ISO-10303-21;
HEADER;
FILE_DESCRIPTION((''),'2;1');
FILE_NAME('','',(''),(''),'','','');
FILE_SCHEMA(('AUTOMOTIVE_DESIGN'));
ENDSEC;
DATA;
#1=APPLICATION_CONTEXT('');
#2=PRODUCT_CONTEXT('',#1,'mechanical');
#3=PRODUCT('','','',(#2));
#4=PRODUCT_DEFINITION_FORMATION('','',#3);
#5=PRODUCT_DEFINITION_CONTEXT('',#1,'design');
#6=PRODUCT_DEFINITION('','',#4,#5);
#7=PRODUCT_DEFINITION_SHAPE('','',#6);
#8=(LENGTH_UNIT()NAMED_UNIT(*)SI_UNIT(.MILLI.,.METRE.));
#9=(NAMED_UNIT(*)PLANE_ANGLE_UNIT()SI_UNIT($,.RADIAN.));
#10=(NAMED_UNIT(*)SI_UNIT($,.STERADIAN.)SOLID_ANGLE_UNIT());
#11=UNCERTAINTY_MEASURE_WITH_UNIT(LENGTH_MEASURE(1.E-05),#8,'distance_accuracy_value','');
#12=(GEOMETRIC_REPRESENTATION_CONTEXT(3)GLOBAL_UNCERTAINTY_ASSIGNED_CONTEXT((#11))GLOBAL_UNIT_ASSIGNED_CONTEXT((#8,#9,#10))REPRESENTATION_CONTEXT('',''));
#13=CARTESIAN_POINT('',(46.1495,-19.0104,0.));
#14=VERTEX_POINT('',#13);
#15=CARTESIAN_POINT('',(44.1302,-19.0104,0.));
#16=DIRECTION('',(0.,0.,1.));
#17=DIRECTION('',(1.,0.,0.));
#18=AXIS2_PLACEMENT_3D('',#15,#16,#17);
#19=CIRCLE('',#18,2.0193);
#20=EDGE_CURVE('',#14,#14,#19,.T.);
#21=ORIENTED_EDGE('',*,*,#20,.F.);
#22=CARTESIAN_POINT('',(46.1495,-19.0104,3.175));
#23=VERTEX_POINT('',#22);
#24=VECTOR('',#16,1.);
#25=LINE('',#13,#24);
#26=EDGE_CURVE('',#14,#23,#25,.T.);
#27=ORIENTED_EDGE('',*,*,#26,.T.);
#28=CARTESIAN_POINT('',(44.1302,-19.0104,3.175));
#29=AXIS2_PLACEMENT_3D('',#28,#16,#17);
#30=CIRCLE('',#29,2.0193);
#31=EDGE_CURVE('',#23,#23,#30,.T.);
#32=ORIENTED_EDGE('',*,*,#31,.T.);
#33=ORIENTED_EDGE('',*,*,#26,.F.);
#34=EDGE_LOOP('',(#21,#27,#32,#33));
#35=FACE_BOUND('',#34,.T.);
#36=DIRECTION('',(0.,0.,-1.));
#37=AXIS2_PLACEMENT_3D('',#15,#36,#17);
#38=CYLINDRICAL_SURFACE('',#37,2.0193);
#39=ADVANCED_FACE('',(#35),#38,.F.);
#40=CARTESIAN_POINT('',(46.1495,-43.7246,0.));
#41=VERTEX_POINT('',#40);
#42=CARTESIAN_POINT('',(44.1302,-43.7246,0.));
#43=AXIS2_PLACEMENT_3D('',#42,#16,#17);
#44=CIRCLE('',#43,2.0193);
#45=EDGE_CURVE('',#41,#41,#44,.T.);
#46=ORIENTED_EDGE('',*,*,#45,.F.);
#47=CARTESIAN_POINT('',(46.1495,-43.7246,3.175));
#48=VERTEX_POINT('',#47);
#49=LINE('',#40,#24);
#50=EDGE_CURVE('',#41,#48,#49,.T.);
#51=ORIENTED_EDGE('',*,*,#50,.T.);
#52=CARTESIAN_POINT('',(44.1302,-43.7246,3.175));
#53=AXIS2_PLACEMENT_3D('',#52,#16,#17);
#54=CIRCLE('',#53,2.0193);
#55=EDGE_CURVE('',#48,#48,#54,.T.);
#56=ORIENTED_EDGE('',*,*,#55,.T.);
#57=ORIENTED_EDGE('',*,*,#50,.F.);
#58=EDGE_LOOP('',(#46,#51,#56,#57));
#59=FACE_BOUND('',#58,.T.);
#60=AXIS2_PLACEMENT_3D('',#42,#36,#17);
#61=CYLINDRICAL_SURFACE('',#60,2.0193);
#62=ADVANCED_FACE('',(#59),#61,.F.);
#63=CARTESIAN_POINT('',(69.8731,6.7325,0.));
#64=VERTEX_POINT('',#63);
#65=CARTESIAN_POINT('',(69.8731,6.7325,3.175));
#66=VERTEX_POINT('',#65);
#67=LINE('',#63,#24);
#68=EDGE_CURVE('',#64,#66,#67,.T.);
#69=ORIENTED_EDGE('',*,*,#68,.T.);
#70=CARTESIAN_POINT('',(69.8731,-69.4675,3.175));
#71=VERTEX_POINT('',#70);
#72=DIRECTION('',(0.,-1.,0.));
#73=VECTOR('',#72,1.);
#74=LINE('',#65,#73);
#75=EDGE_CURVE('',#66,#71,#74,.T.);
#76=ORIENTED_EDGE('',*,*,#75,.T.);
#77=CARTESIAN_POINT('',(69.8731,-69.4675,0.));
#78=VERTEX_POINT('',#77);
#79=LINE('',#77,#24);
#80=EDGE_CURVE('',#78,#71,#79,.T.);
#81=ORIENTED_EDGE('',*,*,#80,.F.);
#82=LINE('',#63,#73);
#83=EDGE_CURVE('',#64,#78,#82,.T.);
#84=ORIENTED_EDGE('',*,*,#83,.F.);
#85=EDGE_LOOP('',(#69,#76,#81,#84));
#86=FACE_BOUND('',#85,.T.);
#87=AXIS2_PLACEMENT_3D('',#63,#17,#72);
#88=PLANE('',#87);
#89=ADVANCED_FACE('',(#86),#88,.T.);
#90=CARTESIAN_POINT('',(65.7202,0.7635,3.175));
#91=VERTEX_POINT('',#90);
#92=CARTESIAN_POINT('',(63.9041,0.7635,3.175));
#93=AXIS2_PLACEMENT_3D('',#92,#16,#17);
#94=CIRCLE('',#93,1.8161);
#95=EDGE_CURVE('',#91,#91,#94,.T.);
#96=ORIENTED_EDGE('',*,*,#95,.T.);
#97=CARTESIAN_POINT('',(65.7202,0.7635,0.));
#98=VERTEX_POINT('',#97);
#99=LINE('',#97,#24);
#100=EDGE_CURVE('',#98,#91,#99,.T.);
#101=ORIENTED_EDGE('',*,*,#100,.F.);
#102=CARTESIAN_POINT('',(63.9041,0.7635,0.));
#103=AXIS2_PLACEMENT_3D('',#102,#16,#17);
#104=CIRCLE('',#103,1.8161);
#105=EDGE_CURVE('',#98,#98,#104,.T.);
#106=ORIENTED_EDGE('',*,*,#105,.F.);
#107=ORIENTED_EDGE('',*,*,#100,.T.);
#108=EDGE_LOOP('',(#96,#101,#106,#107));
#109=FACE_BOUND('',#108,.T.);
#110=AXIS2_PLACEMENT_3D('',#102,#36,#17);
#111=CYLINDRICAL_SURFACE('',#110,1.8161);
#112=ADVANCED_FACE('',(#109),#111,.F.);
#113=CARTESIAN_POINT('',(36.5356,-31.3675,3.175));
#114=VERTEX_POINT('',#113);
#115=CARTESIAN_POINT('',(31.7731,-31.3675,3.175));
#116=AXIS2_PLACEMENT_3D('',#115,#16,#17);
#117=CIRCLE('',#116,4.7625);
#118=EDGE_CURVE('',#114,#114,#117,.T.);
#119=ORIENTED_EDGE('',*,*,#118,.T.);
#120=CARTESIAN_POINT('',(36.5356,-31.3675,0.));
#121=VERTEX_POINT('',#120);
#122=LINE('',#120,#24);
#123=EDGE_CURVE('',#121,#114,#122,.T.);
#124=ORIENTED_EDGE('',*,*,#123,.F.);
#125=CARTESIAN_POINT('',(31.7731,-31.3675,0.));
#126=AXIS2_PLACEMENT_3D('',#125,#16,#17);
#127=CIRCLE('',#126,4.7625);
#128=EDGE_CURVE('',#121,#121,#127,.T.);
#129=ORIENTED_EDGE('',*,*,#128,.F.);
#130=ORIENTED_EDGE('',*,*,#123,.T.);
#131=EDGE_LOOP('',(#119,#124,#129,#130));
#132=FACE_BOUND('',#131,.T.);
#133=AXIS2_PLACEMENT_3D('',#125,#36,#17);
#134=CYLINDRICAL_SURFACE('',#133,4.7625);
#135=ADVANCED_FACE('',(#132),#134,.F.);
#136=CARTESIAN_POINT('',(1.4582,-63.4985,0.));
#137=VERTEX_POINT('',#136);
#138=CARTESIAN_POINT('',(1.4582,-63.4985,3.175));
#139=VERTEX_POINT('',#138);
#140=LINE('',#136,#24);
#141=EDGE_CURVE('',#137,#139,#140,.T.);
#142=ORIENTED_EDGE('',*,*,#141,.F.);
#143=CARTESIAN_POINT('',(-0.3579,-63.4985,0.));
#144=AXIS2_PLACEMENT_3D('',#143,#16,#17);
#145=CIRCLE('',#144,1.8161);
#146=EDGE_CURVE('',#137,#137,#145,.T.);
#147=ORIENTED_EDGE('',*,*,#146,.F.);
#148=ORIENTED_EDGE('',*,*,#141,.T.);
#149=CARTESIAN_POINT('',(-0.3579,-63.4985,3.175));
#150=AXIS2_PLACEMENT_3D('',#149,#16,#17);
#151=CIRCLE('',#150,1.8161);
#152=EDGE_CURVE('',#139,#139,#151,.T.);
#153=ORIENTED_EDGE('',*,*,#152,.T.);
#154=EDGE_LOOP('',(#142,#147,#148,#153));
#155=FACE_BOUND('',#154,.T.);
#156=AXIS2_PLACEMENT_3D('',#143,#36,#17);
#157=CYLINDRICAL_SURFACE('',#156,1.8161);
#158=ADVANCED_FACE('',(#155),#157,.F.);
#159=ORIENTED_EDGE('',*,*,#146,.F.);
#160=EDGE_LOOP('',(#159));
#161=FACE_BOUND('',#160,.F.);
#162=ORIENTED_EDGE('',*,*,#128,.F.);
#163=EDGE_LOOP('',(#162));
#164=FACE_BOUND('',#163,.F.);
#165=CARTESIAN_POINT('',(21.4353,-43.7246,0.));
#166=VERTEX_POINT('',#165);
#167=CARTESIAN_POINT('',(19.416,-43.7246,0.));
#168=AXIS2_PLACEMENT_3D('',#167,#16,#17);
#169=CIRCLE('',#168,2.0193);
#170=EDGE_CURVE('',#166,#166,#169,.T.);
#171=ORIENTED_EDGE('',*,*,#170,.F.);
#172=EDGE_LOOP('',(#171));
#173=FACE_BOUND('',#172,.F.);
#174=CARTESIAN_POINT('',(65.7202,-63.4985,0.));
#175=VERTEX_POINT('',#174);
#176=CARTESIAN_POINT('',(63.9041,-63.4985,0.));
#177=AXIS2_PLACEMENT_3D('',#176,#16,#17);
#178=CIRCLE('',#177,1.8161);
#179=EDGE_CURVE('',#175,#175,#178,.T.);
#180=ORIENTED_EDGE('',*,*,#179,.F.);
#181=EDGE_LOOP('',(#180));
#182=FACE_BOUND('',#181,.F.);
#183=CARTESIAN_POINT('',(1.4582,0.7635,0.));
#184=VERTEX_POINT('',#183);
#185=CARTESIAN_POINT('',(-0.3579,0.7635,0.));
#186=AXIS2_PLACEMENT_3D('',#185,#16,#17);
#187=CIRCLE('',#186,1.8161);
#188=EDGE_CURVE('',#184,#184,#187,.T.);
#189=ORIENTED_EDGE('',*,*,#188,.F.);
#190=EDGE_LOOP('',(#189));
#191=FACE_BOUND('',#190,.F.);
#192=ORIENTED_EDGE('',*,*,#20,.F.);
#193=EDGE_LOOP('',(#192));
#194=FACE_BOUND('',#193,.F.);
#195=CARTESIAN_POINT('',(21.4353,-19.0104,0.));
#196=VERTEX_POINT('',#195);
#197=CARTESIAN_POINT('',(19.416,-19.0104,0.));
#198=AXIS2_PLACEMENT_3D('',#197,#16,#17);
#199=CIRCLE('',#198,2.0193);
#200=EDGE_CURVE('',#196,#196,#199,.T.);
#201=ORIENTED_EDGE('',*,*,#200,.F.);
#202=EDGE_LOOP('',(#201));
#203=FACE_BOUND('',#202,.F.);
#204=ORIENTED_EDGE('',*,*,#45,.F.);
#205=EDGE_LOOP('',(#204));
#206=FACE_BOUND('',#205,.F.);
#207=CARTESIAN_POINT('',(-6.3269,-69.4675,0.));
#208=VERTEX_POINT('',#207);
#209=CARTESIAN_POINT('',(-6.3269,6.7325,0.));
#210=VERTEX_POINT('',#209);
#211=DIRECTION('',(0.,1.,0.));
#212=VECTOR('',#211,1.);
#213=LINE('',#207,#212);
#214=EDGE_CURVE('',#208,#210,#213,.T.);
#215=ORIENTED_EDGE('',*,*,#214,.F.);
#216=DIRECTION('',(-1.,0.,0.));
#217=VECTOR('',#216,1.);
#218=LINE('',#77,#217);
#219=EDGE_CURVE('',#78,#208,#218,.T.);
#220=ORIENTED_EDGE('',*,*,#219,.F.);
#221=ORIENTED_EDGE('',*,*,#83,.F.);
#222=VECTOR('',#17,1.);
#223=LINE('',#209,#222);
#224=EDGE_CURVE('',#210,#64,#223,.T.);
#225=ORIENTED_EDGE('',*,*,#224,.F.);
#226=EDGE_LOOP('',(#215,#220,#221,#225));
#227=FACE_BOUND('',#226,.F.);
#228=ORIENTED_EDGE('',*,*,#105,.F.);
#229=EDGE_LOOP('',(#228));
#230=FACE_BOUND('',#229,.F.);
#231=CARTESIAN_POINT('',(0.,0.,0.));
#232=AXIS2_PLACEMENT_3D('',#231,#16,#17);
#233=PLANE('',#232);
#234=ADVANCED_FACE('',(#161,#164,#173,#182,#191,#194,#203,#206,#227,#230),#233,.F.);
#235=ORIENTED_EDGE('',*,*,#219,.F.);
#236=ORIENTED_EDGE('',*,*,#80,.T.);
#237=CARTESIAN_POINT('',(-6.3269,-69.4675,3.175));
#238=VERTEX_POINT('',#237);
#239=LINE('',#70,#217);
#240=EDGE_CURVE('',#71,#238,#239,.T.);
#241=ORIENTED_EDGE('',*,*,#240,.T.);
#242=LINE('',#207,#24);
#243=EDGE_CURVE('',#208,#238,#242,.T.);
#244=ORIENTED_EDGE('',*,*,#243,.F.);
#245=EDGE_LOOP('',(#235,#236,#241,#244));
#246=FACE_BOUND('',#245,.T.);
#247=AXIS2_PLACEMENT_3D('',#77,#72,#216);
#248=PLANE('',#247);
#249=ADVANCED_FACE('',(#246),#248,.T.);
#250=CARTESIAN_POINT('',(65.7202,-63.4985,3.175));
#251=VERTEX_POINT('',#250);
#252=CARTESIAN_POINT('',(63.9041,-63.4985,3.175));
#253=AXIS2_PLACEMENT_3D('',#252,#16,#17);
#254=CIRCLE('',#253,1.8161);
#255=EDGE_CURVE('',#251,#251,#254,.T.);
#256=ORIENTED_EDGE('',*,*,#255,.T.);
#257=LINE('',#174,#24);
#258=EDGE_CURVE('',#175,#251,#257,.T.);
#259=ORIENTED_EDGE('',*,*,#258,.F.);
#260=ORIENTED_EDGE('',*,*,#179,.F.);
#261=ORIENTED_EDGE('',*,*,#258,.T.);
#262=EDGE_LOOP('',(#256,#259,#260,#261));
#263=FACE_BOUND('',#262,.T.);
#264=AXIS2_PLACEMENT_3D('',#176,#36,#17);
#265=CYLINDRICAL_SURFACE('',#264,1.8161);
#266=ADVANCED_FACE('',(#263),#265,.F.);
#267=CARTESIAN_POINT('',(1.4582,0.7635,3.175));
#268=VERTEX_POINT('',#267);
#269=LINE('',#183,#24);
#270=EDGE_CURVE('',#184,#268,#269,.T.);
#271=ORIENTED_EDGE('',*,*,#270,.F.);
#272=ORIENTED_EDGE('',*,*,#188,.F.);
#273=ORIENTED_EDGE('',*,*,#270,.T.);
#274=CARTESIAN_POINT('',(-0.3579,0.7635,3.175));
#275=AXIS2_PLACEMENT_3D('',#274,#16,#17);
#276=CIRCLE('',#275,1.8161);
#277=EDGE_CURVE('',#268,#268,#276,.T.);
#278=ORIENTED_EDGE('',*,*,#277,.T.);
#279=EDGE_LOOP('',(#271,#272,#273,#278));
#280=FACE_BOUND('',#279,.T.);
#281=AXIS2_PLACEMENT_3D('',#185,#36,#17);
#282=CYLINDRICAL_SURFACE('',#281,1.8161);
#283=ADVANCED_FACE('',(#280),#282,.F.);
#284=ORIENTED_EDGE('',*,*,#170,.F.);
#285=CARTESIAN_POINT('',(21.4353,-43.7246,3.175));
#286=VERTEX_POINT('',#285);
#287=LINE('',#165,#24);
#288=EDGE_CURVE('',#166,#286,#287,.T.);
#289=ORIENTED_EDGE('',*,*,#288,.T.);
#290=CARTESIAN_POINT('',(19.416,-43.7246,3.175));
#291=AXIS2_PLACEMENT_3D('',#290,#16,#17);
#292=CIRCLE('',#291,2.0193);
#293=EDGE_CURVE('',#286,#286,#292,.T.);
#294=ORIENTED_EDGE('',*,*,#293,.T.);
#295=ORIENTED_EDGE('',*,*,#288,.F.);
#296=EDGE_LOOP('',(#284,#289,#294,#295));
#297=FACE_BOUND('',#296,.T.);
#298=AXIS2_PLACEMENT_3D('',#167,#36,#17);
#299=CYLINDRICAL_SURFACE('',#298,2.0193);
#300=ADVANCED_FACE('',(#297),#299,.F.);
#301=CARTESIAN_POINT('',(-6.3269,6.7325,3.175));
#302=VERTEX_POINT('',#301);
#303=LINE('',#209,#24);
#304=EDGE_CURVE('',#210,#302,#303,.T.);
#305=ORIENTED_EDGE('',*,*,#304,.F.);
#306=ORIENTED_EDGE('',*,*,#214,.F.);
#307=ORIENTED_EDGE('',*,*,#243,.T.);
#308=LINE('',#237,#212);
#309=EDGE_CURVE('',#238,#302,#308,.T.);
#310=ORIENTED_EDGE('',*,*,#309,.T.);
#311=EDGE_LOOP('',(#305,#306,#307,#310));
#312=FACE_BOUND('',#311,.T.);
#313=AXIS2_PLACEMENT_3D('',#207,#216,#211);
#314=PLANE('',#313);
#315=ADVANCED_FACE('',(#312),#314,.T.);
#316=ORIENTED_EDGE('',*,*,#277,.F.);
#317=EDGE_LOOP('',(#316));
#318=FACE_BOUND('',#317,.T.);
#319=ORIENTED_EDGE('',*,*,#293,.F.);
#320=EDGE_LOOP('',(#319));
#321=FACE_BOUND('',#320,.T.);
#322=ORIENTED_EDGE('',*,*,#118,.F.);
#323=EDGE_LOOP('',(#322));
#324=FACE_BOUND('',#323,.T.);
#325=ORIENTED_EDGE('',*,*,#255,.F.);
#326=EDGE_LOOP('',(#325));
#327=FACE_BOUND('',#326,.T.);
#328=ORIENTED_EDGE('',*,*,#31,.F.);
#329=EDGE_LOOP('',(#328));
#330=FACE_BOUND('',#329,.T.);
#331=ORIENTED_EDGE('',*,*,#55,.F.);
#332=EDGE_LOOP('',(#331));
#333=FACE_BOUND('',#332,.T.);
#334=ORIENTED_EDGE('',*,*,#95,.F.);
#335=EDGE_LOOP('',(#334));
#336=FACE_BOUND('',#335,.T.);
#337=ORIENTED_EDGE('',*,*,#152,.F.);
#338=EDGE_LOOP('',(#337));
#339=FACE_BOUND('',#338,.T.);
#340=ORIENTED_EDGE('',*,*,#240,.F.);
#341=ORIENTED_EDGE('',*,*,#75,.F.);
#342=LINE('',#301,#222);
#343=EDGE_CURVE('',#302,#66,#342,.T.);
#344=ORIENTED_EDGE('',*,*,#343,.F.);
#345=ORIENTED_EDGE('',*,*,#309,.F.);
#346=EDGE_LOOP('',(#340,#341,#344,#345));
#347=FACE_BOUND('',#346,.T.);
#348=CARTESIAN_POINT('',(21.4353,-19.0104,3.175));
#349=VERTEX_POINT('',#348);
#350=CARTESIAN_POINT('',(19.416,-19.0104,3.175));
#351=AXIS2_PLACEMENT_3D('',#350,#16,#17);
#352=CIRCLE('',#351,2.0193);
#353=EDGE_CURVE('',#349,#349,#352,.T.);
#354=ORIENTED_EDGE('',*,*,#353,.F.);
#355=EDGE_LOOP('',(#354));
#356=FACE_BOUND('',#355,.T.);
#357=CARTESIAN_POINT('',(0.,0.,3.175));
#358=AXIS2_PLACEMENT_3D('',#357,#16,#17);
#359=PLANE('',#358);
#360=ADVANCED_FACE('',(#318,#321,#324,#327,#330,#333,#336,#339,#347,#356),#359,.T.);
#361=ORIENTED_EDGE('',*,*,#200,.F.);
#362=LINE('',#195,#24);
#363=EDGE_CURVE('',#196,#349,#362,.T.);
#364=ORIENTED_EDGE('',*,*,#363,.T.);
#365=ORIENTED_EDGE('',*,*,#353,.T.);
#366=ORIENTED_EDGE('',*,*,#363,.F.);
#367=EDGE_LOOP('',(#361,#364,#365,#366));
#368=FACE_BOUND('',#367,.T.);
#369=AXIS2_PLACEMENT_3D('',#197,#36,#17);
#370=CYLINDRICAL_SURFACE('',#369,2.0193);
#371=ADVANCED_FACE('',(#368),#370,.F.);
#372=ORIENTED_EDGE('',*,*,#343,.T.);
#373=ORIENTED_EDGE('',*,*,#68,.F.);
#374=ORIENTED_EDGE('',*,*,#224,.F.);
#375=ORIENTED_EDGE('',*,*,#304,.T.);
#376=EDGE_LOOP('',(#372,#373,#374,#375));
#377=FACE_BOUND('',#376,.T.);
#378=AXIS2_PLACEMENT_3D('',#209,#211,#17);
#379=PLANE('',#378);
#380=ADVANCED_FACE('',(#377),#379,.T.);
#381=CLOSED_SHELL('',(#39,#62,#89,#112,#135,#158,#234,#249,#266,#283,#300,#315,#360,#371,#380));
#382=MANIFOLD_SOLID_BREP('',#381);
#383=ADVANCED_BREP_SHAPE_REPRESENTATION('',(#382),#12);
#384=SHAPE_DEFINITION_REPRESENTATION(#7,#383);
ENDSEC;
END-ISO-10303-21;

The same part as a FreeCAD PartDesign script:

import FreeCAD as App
import Part
import Sketcher
from FreeCAD import Vector
Q = App.Units.Quantity


def add_polygon(sketch, points):
    """Adds a closed chain of lines whose ends are joined by coincident constraints."""
    first, n = sketch.GeometryCount, len(points)
    for a, b in zip(points, points[1:] + points[:1]):
        sketch.addGeometry(Part.LineSegment(App.Vector(*a, 0), App.Vector(*b, 0)), False)
    for i in range(n):
        sketch.addConstraint(Sketcher.Constraint("Coincident", first + i, 2, first + (i + 1) % n, 1))

doc = App.newDocument("Part")
body = doc.addObject("PartDesign::Body", "Body")

# Sketch on XY plane
sketch1 = body.newObject("Sketcher::SketchObject", "Sketch")
sketch1.AttachmentSupport = (doc.getObject("XY_Plane"), [""])
sketch1.MapMode = "FlatFace"
add_polygon(sketch1, [(69.9, 6.7), (-6.3, 6.7), (-6.3, -69.5), (69.9, -69.5)])  # lines 0-3
sketch1.addGeometry(Part.Circle(Vector(-0.4, -63.5, 0), Vector(0, 0, 1), 1.8), False)  # 4
sketch1.addGeometry(Part.Circle(Vector(19.4, -43.7, 0), Vector(0, 0, 1), 2), False)  # 5
sketch1.addGeometry(Part.Circle(Vector(63.9, -63.5, 0), Vector(0, 0, 1), 1.8), False)  # 6
sketch1.addGeometry(Part.Circle(Vector(44.1, -43.7, 0), Vector(0, 0, 1), 2), False)  # 7
sketch1.addGeometry(Part.Circle(Vector(19.4, -19, 0), Vector(0, 0, 1), 2), False)  # 8
sketch1.addGeometry(Part.Circle(Vector(-0.4, 0.8, 0), Vector(0, 0, 1), 1.8), False)  # 9
sketch1.addGeometry(Part.Circle(Vector(31.8, -31.4, 0), Vector(0, 0, 1), 4.8), False)  # 10
sketch1.addGeometry(Part.Circle(Vector(44.1, -19, 0), Vector(0, 0, 1), 2), False)  # 11
sketch1.addGeometry(Part.Circle(Vector(63.9, 0.8, 0), Vector(0, 0, 1), 1.8), False)  # 12
sketch1.addConstraint([
    Sketcher.Constraint("Horizontal", 0),
    Sketcher.Constraint("Vertical", 1),
    Sketcher.Constraint("Horizontal", 2),
    Sketcher.Constraint("Vertical", 3),
    Sketcher.Constraint("Equal", 4, 6),
    Sketcher.Constraint("Equal", 5, 7),
    Sketcher.Constraint("Equal", 7, 8),
    Sketcher.Constraint("Equal", 6, 9),
    Sketcher.Constraint("Equal", 8, 11),
    Sketcher.Constraint("Equal", 9, 12),
    Sketcher.Constraint("Horizontal", 4, 3, 6, 3),
    Sketcher.Constraint("Horizontal", 5, 3, 7, 3),
    Sketcher.Constraint("Horizontal", 8, 3, 11, 3),
    Sketcher.Constraint("Horizontal", 9, 3, 12, 3),
    Sketcher.Constraint("Vertical", 5, 3, 8, 3),
    Sketcher.Constraint("Vertical", 4, 3, 9, 3),
    Sketcher.Constraint("Vertical", 7, 3, 11, 3),
    Sketcher.Constraint("Vertical", 6, 3, 12, 3),
    Sketcher.Constraint("Equal", 2, 1),
    Sketcher.Constraint("DistanceX", 0, 2, 0, 1, Q("3 in")),
    Sketcher.Constraint("Diameter", 4, Q("0.143 in")),
    Sketcher.Constraint("Diameter", 5, Q("0.159 in")),
    Sketcher.Constraint("Diameter", 10, Q("0.375 in")),
    Sketcher.Constraint("DistanceX", 0, 2, 10, 3, Q("1.5 in")),
    Sketcher.Constraint("DistanceY", 10, 3, 0, 2, Q("1.5 in")),
    Sketcher.Constraint("DistanceX", 4, 3, 6, 3, Q("2.53 in")),
    Sketcher.Constraint("DistanceY", 4, 3, 9, 3, Q("2.53 in")),
    Sketcher.Constraint("DistanceX", 5, 3, 7, 3, Q("0.973 in")),
    Sketcher.Constraint("DistanceY", 5, 3, 8, 3, Q("0.973 in")),
    Sketcher.Constraint("DistanceX", 4, 3, 10, 3, Q("1.265 in")),
    Sketcher.Constraint("DistanceY", 4, 3, 10, 3, Q("1.265 in")),
    Sketcher.Constraint("DistanceX", 4, 3, -1, 1, Q("0.0141 in")),
    Sketcher.Constraint("DistanceX", -1, 1, 5, 3, Q("0.7644 in")),
    Sketcher.Constraint("DistanceY", 4, 3, 5, 3, Q("0.7785 in")),
    Sketcher.Constraint("DistanceY", 4, 3, -1, 1, Q("63.4985 mm")),
])
pad1 = body.newObject("PartDesign::Pad", "Pad")
pad1.Profile = sketch1
pad1.Length = Q("0.125 in")

doc.recompute()
